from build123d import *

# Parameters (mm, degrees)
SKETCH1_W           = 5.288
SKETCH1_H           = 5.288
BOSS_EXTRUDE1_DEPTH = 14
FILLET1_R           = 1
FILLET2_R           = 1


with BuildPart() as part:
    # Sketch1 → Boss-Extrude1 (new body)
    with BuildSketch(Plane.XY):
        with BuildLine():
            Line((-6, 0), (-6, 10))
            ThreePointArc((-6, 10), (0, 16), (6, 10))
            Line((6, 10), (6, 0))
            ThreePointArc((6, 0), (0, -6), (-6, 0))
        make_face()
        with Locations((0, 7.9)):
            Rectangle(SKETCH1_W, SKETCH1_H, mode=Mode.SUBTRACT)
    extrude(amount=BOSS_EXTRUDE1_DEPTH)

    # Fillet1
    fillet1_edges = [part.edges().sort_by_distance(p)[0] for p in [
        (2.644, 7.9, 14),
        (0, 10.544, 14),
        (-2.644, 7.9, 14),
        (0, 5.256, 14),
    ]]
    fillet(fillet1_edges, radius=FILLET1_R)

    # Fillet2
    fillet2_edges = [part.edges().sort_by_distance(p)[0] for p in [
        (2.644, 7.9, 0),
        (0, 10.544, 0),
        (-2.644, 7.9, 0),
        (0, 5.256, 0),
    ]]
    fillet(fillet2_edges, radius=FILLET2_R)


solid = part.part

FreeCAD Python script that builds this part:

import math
import FreeCAD as App
import Part
import Sketcher
from FreeCAD import Vector


def edges_at(feature, points):
    """Names of the edges that pass closest to the given points."""
    edges = feature.Shape.Edges
    near = lambda p: min(range(len(edges)), key=lambda i: edges[i].distToShape(Part.Vertex(*p))[0])
    return sorted({f"Edge{near(p) + 1}" for p in points})


def add_polygon(sketch, points):
    """Adds a closed chain of lines whose ends are joined by coincident constraints."""
    first, n = sketch.GeometryCount, len(points)
    for a, b in zip(points, points[1:] + points[:1]):
        sketch.addGeometry(Part.LineSegment(App.Vector(*a, 0), App.Vector(*b, 0)), False)
    for i in range(n):
        sketch.addConstraint(Sketcher.Constraint("Coincident", first + i, 2, first + (i + 1) % n, 1))

doc = App.newDocument("Part")
params = doc.addObject("Spreadsheet::Sheet", "Params")
for row, (alias, value) in enumerate([
    ("sketch1_radius", "6 mm"),
    ("sketch1_height", "10 mm"),
    ("pad1_length", "14 mm"),
    ("fillet_radius", "1 mm"),
    ("fillet2_radius", "1 mm"),
], start=1):
    params.set(f"A{row}", alias)
    params.set(f"B{row}", "=" + value)
    params.setAlias(f"B{row}", alias)

body = doc.addObject("PartDesign::Body", "Body")

sketch1 = body.newObject("Sketcher::SketchObject", "Sketch")
sketch1.AttachmentSupport = (doc.getObject("XY_Plane"), [""])
sketch1.MapMode = "FlatFace"
sketch1.addGeometry(Part.LineSegment(Vector(-6, 10, 0), Vector(-6, 0, 0)), False)
sketch1.addGeometry(Part.ArcOfCircle(Part.Circle(Vector(0, 0, 0), Vector(0, 0, 1), 6), math.radians(180), math.radians(360)), False)
sketch1.addGeometry(Part.LineSegment(Vector(6, 0, 0), Vector(6, 10, 0)), False)
sketch1.addGeometry(Part.ArcOfCircle(Part.Circle(Vector(0, 10, 0), Vector(0, 0, 1), 6), math.radians(0), math.radians(180)), False)
add_polygon(sketch1, [(-2.644, 5.256), (-2.644, 10.544), (2.644, 10.544), (2.644, 5.256)])
sketch1.addConstraint(Sketcher.Constraint("Tangent", 0, 2, 1, 1))
sketch1.addConstraint(Sketcher.Constraint("Tangent", 1, 2, 2, 1))
sketch1.addConstraint(Sketcher.Constraint("Tangent", 2, 2, 3, 1))
sketch1.addConstraint(Sketcher.Constraint("Tangent", 3, 2, 0, 1))
sketch1.addConstraint(Sketcher.Constraint("Vertical", 0))
sketch1.addConstraint(Sketcher.Constraint("Vertical", 2))
sketch1.addConstraint(Sketcher.Constraint("Vertical", 4))
sketch1.addConstraint(Sketcher.Constraint("Horizontal", 5))
sketch1.addConstraint(Sketcher.Constraint("Vertical", 6))
sketch1.addConstraint(Sketcher.Constraint("Horizontal", 7))
sketch1.addConstraint(Sketcher.Constraint("Coincident", 1, 3, -1, 1))
sketch1.addConstraint(Sketcher.Constraint("Equal", 7, 4))
sketch1.addConstraint(Sketcher.Constraint("Radius", 1, 6.0))
sketch1.addConstraint(Sketcher.Constraint("DistanceY", 0, 2, 0, 1, 10.0))
sketch1.addConstraint(Sketcher.Constraint("DistanceX", 5, 1, 5, 2, 5.288))
sketch1.addConstraint(Sketcher.Constraint("DistanceX", 4, 2, -1, 1, 2.644))
sketch1.addConstraint(Sketcher.Constraint("DistanceY", -1, 1, 4, 2, 10.544))
sketch1.setExpression("Constraints[16]", "Params.sketch1_radius")
sketch1.setExpression("Constraints[17]", "Params.sketch1_height")
pad1 = body.newObject("PartDesign::Pad", "Pad")
pad1.Profile = sketch1
pad1.setExpression("Length", "Params.pad1_length")
doc.recompute()

fillet = body.newObject("PartDesign::Fillet", "Fillet")
fillet.Base = (pad1, edges_at(pad1, [
    (2.644, 7.9, 14),
    (0, 10.544, 14),
    (-2.644, 7.9, 14),
    (0, 5.256, 14),
]))
fillet.setExpression("Radius", "Params.fillet_radius")
doc.recompute()

fillet2 = body.newObject("PartDesign::Fillet", "Fillet001")
fillet2.Base = (fillet, edges_at(fillet, [
    (2.644, 7.9, 0),
    (0, 10.544, 0),
    (-2.644, 7.9, 0),
    (0, 5.256, 0),
]))
fillet2.setExpression("Radius", "Params.fillet2_radius")

doc.recompute()
